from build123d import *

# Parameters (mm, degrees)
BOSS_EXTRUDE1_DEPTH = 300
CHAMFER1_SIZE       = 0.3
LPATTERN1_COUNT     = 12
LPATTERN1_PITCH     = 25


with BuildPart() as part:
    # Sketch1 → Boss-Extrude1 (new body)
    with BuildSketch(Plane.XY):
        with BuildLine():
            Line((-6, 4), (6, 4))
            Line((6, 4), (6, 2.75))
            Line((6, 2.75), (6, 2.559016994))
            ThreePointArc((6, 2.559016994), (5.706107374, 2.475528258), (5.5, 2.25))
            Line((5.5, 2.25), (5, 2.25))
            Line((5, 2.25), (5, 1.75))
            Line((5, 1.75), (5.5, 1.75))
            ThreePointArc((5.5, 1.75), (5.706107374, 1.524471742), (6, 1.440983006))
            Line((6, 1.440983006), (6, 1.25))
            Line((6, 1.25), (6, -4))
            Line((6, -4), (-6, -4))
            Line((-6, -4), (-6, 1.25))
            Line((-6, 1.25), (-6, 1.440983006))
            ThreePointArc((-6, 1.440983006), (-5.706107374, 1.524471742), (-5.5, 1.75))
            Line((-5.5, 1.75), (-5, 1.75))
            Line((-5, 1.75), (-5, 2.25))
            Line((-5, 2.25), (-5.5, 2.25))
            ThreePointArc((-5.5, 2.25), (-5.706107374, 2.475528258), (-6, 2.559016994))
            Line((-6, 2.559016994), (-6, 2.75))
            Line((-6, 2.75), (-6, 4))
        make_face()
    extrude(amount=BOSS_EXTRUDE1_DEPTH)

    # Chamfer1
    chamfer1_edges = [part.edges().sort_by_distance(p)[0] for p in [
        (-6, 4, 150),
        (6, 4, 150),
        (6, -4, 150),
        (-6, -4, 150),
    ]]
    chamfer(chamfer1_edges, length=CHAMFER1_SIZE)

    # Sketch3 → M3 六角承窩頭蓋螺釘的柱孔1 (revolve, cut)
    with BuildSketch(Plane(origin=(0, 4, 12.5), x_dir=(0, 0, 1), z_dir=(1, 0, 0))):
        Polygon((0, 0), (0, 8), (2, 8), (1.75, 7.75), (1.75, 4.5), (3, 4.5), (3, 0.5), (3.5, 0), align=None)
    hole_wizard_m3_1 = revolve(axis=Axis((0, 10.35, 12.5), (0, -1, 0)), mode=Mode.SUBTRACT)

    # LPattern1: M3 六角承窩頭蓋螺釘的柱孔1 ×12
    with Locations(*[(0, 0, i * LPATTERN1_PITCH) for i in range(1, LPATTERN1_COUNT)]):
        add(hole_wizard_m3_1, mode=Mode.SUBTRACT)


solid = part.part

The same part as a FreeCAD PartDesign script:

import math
import FreeCAD as App
import Part
import Sketcher
Q = App.Units.Quantity


def edges_at(feature, points):
    """Names of the edges that pass closest to the given points."""
    edges = feature.Shape.Edges
    near = lambda p: min(range(len(edges)), key=lambda i: edges[i].distToShape(Part.Vertex(*p))[0])
    return sorted({f"Edge{near(p) + 1}" for p in points})


def add_polygon(sketch, points):
    """Adds a closed chain of lines whose ends are joined by coincident constraints."""
    first, n = sketch.GeometryCount, len(points)
    for a, b in zip(points, points[1:] + points[:1]):
        sketch.addGeometry(Part.LineSegment(App.Vector(*a, 0), App.Vector(*b, 0)), False)
    for i in range(n):
        sketch.addConstraint(Sketcher.Constraint("Coincident", first + i, 2, first + (i + 1) % n, 1))

doc = App.newDocument("Part")
body = doc.addObject("PartDesign::Body", "Body")

sketch1 = doc.addObject("Sketcher::SketchObject", "Sketch")
body.addObject(sketch1)
sketch1.AttachmentSupport = (doc.XY_Plane, [""])
sketch1.MapMode = "FlatFace"
sketch1.addGeometry(Part.LineSegment(App.Vector(6, 4, 0), App.Vector(-6, 4, 0)), False)
sketch1.addGeometry(Part.LineSegment(App.Vector(-6, 4, 0), App.Vector(-6, 2.6, 0)), False)
sketch1.addGeometry(Part.ArcOfCircle(Part.Circle(App.Vector(-6, 2, 0), App.Vector(0, 0, 1), 0.6), math.radians(27), math.radians(90)), False)
sketch1.addGeometry(Part.LineSegment(App.Vector(-5.5, 2.2, 0), App.Vector(-5, 2.2, 0)), False)
sketch1.addGeometry(Part.LineSegment(App.Vector(-5, 2.2, 0), App.Vector(-5, 1.8, 0)), False)
sketch1.addGeometry(Part.LineSegment(App.Vector(-5, 1.8, 0), App.Vector(-5.5, 1.8, 0)), False)
sketch1.addGeometry(Part.ArcOfCircle(Part.Circle(App.Vector(-6, 2, 0), App.Vector(0, 0, 1), 0.6), math.radians(-90), math.radians(-27)), False)
sketch1.addGeometry(Part.LineSegment(App.Vector(-6, 1.4, 0), App.Vector(-6, -4, 0)), False)
sketch1.addGeometry(Part.LineSegment(App.Vector(-6, -4, 0), App.Vector(6, -4, 0)), False)
sketch1.addGeometry(Part.LineSegment(App.Vector(6, -4, 0), App.Vector(6, 1.4, 0)), False)
sketch1.addGeometry(Part.ArcOfCircle(Part.Circle(App.Vector(6, 2, 0), App.Vector(0, 0, 1), 0.6), math.radians(-153), math.radians(-90)), False)
sketch1.addGeometry(Part.LineSegment(App.Vector(5.5, 1.8, 0), App.Vector(5, 1.8, 0)), False)
sketch1.addGeometry(Part.LineSegment(App.Vector(5, 1.8, 0), App.Vector(5, 2.2, 0)), False)
sketch1.addGeometry(Part.LineSegment(App.Vector(5, 2.2, 0), App.Vector(5.5, 2.2, 0)), False)
sketch1.addGeometry(Part.ArcOfCircle(Part.Circle(App.Vector(6, 2, 0), App.Vector(0, 0, 1), 0.6), math.radians(90), math.radians(153)), False)
sketch1.addGeometry(Part.LineSegment(App.Vector(6, 2.6, 0), App.Vector(6, 4, 0)), False)
sketch1.addConstraint(Sketcher.Constraint("Coincident", 0, 2, 1, 1))
sketch1.addConstraint(Sketcher.Constraint("Coincident", 1, 2, 2, 2))
sketch1.addConstraint(Sketcher.Constraint("Coincident", 2, 1, 3, 1))
sketch1.addConstraint(Sketcher.Constraint("Coincident", 3, 2, 4, 1))
sketch1.addConstraint(Sketcher.Constraint("Coincident", 4, 2, 5, 1))
sketch1.addConstraint(Sketcher.Constraint("Coincident", 5, 2, 6, 2))
sketch1.addConstraint(Sketcher.Constraint("Coincident", 6, 1, 7, 1))
sketch1.addConstraint(Sketcher.Constraint("Coincident", 7, 2, 8, 1))
sketch1.addConstraint(Sketcher.Constraint("Coincident", 8, 2, 9, 1))
sketch1.addConstraint(Sketcher.Constraint("Coincident", 9, 2, 10, 2))
sketch1.addConstraint(Sketcher.Constraint("Coincident", 10, 1, 11, 1))
sketch1.addConstraint(Sketcher.Constraint("Coincident", 11, 2, 12, 1))
sketch1.addConstraint(Sketcher.Constraint("Coincident", 12, 2, 13, 1))
sketch1.addConstraint(Sketcher.Constraint("Coincident", 13, 2, 14, 2))
sketch1.addConstraint(Sketcher.Constraint("Coincident", 14, 1, 15, 1))
sketch1.addConstraint(Sketcher.Constraint("Coincident", 15, 2, 0, 1))
sketch1.addConstraint(Sketcher.Constraint("Horizontal", 0))
sketch1.addConstraint(Sketcher.Constraint("Vertical", 1))
sketch1.addConstraint(Sketcher.Constraint("Horizontal", 3))
sketch1.addConstraint(Sketcher.Constraint("Vertical", 4))
sketch1.addConstraint(Sketcher.Constraint("Horizontal", 5))
sketch1.addConstraint(Sketcher.Constraint("Vertical", 7))
sketch1.addConstraint(Sketcher.Constraint("Horizontal", 8))
sketch1.addConstraint(Sketcher.Constraint("Vertical", 9))
sketch1.addConstraint(Sketcher.Constraint("Horizontal", 11))
sketch1.addConstraint(Sketcher.Constraint("Vertical", 12))
sketch1.addConstraint(Sketcher.Constraint("Horizontal", 13))
sketch1.addConstraint(Sketcher.Constraint("Vertical", 15))
sketch1.addConstraint(Sketcher.Constraint("Coincident", 6, 3, 2, 3))
sketch1.addConstraint(Sketcher.Constraint("Coincident", 14, 3, 10, 3))
sketch1.addConstraint(Sketcher.Constraint("Equal", 2, 6))
sketch1.addConstraint(Sketcher.Constraint("Equal", 6, 10))
sketch1.addConstraint(Sketcher.Constraint("Equal", 10, 14))
sketch1.addConstraint(Sketcher.Constraint("Symmetric", 0, 2, 8, 2, -1, 1))
sketch1.addConstraint(Sketcher.Constraint("Symmetric", 2, 3, 10, 3, -2))
sketch1.addConstraint(Sketcher.Constraint("Symmetric", 4, 2, 11, 2, -2))
sketch1.addConstraint(Sketcher.Constraint("Horizontal", 3, 2, 12, 2))
sketch1.addConstraint(Sketcher.Constraint("Vertical", 6, 3, 0, 2))
sketch1.addConstraint(Sketcher.Constraint("Vertical", 2, 1, 5, 2))
sketch1.addConstraint(Sketcher.Constraint("Vertical", 1, 2, 6, 1))
sketch1.addConstraint(Sketcher.Constraint("Vertical", 9, 2, 14, 1))
sketch1.addConstraint(Sketcher.Constraint("Equal", 13, 4))
sketch1.addConstraint(Sketcher.Constraint("DistanceX", 0, 2, 0, 1, 12.0))
sketch1.addConstraint(Sketcher.Constraint("DistanceX", 3, 1, 3, 2, 0.5))
sketch1.addConstraint(Sketcher.Constraint("DistanceY", -1, 1, 2, 3, 2.0))
sketch1.addConstraint(Sketcher.Constraint("DistanceY", -1, 1, 0, 2, 4.0))
sketch1.addConstraint(Sketcher.Constraint("DistanceX", 3, 2, -1, 1, 5.0))
pad1 = doc.addObject("PartDesign::Pad", "Pad")
body.addObject(pad1)
pad1.Profile = sketch1
pad1.Length = 300
doc.recompute()

chamfer = doc.addObject("PartDesign::Chamfer", "Chamfer")
body.addObject(chamfer)
chamfer.Base = (pad1, edges_at(pad1, [
    (-6, 4, 150),
    (6, 4, 150),
    (6, -4, 150),
    (-6, -4, 150),
]))
chamfer.Size = 0.3

sketch2 = doc.addObject("Sketcher::SketchObject", "Sketch001")
body.addObject(sketch2)
sketch2.AttachmentSupport = (doc.YZ_Plane, [""])
sketch2.MapMode = "FlatFace"
add_polygon(sketch2, [(-4, 12.5), (4, 12.5), (4, 16), (3.5, 15.5), (-0.5, 15.5), (-0.5, 14.25), (-3.75, 14.25), (-4, 14.5)])
sketch2.addGeometry(Part.LineSegment(App.Vector(4, 12.5, 0), App.Vector(-4, 12.5, 0)), True)
sketch2.addConstraint(Sketcher.Constraint("Horizontal", 0))
sketch2.addConstraint(Sketcher.Constraint("Vertical", 1))
sketch2.addConstraint(Sketcher.Constraint("Horizontal", 3))
sketch2.addConstraint(Sketcher.Constraint("Vertical", 4))
sketch2.addConstraint(Sketcher.Constraint("Horizontal", 5))
sketch2.addConstraint(Sketcher.Constraint("Vertical", 7))
sketch2.addConstraint(Sketcher.Constraint("Horizontal", 8))
sketch2.addConstraint(Sketcher.Constraint("Coincident", 8, 1, 0, 2))
sketch2.addConstraint(Sketcher.Constraint("Perpendicular", 2, 6))
sketch2.addConstraint(Sketcher.Constraint("Vertical", 6, 2, 8, 2))
sketch2.addConstraint(Sketcher.Constraint("DistanceX", 0, 1, 0, 2, 8.0))
sketch2.addConstraint(Sketcher.Constraint("DistanceX", 3, 2, 3, 1, 4.0))
sketch2.addConstraint(Sketcher.Constraint("DistanceY", 7, 2, 7, 1, 2.0))
sketch2.addConstraint(Sketcher.Constraint("Angle", 2, Q("-135 deg")))
sketch2.addConstraint(Sketcher.Constraint("DistanceY", 1, 1, 1, 2, 3.5))
sketch2.addConstraint(Sketcher.Constraint("DistanceX", -1, 1, 0, 2, 4.0))
sketch2.addConstraint(Sketcher.Constraint("DistanceY", -1, 1, 1, 2, 16.0))
sketch2.addConstraint(Sketcher.Constraint("DistanceY", 0, 2, 2, 2, 3.0))
sketch2.addConstraint(Sketcher.Constraint("DistanceX", 5, 2, 5, 1, 3.25))
groove = doc.addObject("PartDesign::Groove", "Groove")
body.addObject(groove)
groove.Profile = sketch2
groove.ReferenceAxis = (sketch2, ["Axis0"])
groove.Angle = 360
doc.recompute()

linearpattern = doc.addObject("PartDesign::LinearPattern", "LinearPattern")
body.addObject(linearpattern)
linearpattern.Originals = [groove]
linearpattern.Direction = (doc.Z_Axis, [""])
linearpattern.Mode = "offset"
linearpattern.Offset = 25
linearpattern.Occurrences = 12
body.Tip = linearpattern

doc.recompute()
